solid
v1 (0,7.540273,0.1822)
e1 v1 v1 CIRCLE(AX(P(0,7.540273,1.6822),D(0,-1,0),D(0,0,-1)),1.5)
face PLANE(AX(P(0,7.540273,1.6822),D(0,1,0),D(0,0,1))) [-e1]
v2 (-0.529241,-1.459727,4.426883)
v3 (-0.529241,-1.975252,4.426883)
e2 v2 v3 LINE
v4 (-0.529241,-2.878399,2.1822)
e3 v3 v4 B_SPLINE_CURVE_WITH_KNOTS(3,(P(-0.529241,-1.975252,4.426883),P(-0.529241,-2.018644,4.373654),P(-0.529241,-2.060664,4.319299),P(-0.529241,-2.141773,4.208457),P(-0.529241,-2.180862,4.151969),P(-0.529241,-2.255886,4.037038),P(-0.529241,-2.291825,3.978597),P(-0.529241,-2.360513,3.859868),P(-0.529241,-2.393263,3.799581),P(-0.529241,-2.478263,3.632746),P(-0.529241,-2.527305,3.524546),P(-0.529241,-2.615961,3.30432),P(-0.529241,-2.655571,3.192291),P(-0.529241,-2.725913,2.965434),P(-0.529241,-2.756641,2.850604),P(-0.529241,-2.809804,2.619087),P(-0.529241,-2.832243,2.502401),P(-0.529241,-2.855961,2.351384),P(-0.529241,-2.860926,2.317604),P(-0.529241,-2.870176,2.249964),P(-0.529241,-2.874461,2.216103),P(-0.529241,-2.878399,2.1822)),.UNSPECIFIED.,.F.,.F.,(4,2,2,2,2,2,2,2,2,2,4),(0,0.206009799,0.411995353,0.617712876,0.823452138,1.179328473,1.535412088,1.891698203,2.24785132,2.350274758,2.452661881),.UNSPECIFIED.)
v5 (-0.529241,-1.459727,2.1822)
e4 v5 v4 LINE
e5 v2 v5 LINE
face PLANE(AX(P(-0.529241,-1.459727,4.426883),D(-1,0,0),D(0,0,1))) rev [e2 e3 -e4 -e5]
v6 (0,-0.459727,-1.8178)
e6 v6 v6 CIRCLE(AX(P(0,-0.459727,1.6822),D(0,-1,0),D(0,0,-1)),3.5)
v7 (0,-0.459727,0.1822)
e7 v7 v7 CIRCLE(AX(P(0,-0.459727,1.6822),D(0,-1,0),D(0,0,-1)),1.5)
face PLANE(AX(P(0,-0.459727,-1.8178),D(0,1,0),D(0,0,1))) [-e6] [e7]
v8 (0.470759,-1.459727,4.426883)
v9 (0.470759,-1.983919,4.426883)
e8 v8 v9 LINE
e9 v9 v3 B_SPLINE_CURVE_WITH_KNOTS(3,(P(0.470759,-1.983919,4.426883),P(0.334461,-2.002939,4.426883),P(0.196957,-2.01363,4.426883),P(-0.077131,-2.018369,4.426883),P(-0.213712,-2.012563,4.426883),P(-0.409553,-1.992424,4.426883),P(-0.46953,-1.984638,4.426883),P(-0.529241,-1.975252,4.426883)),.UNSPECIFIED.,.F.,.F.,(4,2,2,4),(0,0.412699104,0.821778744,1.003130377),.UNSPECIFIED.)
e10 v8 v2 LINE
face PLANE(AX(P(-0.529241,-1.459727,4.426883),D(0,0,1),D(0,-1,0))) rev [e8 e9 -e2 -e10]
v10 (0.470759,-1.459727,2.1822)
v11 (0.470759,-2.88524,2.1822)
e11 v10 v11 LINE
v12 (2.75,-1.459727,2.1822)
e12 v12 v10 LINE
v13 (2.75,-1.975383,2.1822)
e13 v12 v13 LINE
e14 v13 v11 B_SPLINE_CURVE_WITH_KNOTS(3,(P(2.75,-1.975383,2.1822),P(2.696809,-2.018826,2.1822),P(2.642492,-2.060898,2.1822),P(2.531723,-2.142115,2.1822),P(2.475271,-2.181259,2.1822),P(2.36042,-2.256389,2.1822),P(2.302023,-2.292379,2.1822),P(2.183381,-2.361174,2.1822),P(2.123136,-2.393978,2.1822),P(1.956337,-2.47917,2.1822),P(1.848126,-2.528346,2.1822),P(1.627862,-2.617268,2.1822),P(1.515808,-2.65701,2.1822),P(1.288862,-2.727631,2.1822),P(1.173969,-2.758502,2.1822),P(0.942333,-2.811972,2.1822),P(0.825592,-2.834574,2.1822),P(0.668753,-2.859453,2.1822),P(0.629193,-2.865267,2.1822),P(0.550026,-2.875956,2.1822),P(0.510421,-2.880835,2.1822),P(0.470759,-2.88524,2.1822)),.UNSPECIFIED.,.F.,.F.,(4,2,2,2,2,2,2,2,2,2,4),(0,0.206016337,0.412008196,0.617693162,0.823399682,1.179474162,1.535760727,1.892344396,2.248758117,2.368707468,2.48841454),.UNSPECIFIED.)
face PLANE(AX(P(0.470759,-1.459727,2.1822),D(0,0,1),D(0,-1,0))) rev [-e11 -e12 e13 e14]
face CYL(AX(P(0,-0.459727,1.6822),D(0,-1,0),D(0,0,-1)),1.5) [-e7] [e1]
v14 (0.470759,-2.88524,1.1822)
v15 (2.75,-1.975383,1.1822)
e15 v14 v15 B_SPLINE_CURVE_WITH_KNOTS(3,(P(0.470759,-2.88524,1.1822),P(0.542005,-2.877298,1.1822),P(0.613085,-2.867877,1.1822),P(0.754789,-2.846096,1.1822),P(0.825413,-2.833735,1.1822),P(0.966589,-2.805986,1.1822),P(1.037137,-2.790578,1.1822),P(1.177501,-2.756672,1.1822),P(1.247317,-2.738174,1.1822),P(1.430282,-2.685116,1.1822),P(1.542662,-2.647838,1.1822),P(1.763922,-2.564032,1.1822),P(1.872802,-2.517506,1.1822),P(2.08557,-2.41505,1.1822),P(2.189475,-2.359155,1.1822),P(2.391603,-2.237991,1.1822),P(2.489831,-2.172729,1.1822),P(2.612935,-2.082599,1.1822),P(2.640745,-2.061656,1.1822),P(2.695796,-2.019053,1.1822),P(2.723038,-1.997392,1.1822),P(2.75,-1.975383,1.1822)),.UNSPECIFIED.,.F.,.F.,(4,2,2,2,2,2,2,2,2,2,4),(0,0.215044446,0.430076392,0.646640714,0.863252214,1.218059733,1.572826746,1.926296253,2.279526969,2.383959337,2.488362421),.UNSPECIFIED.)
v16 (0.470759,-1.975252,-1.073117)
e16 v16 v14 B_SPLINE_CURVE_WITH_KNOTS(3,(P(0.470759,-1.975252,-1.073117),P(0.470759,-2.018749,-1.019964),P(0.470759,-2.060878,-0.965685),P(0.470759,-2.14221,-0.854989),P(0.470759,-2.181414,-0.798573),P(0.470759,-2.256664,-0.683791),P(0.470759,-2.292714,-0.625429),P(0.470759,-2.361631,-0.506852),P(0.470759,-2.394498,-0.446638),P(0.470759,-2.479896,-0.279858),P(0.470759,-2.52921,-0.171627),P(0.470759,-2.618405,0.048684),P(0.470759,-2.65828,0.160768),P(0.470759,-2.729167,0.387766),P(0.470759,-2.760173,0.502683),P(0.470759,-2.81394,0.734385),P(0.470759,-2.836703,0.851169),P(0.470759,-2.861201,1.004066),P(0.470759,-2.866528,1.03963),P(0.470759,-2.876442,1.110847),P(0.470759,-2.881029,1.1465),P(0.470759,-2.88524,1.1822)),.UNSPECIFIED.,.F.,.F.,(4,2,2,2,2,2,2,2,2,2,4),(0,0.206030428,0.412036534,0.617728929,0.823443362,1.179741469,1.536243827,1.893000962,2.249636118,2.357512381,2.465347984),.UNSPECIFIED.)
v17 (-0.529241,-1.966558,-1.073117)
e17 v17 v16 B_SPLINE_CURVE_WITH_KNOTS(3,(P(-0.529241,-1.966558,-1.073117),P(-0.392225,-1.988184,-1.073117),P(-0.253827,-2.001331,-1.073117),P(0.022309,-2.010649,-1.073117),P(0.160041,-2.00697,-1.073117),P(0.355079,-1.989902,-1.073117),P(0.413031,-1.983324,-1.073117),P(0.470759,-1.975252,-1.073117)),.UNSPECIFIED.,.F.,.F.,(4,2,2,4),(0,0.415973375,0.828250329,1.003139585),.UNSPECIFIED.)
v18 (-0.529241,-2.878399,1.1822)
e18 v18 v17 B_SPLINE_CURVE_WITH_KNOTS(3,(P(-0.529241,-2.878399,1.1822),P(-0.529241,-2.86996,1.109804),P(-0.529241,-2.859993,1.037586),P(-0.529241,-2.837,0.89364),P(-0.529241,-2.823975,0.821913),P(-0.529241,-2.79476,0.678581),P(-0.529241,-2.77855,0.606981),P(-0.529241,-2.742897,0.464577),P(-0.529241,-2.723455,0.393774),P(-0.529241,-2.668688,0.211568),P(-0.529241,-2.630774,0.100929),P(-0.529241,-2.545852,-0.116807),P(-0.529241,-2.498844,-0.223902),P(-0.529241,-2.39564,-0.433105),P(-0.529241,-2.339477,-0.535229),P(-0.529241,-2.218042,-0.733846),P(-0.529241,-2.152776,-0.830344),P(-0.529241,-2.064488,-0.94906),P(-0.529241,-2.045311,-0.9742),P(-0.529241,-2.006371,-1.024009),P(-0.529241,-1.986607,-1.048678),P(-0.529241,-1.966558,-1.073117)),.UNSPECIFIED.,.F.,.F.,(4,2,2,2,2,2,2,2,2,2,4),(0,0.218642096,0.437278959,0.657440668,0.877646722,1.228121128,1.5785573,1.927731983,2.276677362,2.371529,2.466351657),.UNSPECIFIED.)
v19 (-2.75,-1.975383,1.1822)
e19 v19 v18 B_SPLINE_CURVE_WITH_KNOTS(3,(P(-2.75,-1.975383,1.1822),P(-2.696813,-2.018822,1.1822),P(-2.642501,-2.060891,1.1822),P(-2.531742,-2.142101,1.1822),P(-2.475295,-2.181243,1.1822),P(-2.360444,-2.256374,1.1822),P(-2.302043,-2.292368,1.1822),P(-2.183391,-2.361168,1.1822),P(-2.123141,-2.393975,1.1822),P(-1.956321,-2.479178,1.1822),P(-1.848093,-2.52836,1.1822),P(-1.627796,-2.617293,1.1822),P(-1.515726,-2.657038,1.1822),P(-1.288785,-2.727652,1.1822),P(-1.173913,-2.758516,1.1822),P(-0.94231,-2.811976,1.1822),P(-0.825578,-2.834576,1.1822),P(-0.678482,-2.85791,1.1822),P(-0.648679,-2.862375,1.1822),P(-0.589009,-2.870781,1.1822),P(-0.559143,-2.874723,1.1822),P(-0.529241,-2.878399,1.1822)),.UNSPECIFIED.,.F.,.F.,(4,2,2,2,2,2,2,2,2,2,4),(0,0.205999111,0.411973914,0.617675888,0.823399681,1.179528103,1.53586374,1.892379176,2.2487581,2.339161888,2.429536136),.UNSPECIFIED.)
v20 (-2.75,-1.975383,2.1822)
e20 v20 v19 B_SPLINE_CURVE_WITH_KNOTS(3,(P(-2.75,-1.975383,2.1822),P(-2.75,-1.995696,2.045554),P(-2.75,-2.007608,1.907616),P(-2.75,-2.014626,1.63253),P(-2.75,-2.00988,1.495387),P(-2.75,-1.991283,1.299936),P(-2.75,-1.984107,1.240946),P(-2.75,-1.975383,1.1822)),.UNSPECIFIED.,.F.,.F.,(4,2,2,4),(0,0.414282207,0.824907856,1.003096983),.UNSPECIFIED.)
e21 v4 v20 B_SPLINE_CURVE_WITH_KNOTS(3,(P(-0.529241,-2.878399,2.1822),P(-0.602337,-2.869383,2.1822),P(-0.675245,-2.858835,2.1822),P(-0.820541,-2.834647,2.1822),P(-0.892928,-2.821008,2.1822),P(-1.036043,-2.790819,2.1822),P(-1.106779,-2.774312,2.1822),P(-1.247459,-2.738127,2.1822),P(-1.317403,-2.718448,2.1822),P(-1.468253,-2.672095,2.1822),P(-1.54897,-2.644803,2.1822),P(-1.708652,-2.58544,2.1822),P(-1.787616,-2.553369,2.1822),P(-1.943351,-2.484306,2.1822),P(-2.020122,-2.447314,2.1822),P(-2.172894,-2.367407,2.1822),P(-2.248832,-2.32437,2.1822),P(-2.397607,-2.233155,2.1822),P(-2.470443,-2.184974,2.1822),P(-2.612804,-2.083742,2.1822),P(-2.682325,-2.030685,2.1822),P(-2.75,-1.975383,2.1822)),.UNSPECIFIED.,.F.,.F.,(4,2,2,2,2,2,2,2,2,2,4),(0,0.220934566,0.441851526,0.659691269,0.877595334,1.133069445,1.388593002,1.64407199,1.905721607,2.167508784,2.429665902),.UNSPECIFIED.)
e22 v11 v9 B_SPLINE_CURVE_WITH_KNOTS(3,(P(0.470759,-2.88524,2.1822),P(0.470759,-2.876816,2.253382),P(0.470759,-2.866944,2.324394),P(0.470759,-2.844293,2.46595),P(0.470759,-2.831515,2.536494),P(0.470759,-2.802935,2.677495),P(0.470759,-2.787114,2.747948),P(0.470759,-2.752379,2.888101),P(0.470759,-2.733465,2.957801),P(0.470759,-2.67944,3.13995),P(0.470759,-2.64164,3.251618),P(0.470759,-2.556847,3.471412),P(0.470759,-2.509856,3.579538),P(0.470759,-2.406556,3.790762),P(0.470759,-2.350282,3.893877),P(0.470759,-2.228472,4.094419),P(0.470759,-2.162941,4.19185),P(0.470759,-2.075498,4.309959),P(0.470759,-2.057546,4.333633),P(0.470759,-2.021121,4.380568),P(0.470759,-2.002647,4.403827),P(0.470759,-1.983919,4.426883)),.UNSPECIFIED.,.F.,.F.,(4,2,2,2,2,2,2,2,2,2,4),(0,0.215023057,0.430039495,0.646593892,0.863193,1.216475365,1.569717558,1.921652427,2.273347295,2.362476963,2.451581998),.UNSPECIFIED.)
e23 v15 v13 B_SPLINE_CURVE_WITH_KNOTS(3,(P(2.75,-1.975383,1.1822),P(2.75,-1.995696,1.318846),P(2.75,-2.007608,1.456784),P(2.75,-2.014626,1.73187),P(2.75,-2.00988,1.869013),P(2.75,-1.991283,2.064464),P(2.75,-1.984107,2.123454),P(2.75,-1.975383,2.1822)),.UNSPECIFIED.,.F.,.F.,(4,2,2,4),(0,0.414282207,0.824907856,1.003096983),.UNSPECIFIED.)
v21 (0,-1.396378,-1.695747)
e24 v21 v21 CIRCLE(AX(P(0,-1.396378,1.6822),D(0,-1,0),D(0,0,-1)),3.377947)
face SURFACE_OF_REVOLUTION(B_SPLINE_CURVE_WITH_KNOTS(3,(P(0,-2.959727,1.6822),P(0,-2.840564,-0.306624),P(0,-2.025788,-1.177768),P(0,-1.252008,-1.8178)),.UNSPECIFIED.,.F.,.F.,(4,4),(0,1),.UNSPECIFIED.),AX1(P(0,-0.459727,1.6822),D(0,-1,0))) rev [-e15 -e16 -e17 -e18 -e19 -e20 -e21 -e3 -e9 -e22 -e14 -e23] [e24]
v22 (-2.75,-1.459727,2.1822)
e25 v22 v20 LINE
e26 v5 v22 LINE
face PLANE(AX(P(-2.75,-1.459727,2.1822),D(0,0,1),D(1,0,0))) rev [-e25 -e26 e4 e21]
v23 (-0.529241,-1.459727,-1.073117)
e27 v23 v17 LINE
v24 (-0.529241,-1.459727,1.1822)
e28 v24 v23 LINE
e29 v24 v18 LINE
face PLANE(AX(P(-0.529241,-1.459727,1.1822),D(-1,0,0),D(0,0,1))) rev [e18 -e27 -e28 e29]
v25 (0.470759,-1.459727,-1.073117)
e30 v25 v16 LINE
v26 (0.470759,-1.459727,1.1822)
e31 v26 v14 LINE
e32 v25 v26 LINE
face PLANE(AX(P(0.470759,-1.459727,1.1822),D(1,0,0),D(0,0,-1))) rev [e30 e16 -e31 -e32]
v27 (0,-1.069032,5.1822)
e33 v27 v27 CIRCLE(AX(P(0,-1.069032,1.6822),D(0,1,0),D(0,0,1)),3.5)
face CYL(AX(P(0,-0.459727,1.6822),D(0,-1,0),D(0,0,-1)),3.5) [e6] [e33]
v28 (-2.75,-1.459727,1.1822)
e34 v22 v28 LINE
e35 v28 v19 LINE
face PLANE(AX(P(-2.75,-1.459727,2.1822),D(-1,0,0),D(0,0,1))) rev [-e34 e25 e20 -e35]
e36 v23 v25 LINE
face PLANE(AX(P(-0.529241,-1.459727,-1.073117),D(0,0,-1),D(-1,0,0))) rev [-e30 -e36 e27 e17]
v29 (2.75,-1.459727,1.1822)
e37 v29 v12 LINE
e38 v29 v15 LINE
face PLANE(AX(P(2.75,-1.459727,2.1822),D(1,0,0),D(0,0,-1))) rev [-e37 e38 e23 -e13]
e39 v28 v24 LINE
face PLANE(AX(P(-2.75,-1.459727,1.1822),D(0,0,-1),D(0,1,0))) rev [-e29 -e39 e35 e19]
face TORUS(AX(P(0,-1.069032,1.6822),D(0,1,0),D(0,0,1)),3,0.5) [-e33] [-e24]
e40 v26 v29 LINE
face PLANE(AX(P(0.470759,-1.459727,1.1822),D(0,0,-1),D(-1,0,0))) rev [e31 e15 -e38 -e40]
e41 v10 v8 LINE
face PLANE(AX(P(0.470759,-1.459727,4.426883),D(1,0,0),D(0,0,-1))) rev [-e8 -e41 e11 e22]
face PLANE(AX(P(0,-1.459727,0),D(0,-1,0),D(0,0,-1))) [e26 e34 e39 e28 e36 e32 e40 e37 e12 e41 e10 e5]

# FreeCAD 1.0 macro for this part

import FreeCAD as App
import Part
import Sketcher
from FreeCAD import Vector


def edges_at(feature, points):
    """Names of the edges that pass closest to the given points."""
    edges = feature.Shape.Edges
    near = lambda p: min(range(len(edges)), key=lambda i: edges[i].distToShape(Part.Vertex(*p))[0])
    return sorted({f"Edge{near(p) + 1}" for p in points})


def add_polygon(sketch, points):
    """Adds a closed chain of lines whose ends are joined by coincident constraints."""
    first, n = sketch.GeometryCount, len(points)
    for a, b in zip(points, points[1:] + points[:1]):
        sketch.addGeometry(Part.LineSegment(App.Vector(*a, 0), App.Vector(*b, 0)), False)
    for i in range(n):
        sketch.addConstraint(Sketcher.Constraint("Coincident", first + i, 2, first + (i + 1) % n, 1))

doc = App.newDocument("Part")
params = doc.addObject("Spreadsheet::Sheet", "Params")
for row, (alias, value) in enumerate([
    ("sketch1_width", "8 mm"),
    ("sketch1_height", "2 mm"),
    ("sketch1_width2", "10.5 mm"),
    ("revolution_angle", "360 deg"),
    ("fillet_radius", "0.5 mm"),
    ("sketch2_width", "1 mm"),
    ("pocket1_length", "1.5 mm"),
], start=1):
    params.set(f"A{row}", alias)
    params.set(f"B{row}", "=" + value)
    params.setAlias(f"B{row}", alias)

body = doc.addObject("PartDesign::Body", "Body")

sketch1 = body.newObject("Sketcher::SketchObject", "Sketch")
sketch1.AttachmentSupport = (doc.getObject("YZ_Plane"), [""])
sketch1.MapMode = "FlatFace"
sketch1.addGeometry([
    Part.LineSegment(Vector(-0.459727, -1.8178, 0), Vector(-0.459727, 0.1822, 0)),
    Part.LineSegment(Vector(-0.459727, 0.1822, 0), Vector(7.540273, 0.1822, 0)),
    Part.LineSegment(Vector(7.540273, 0.1822, 0), Vector(7.540273, 1.6822, 0)),
    Part.LineSegment(Vector(7.540273, 1.6822, 0), Vector(-2.959727, 1.6822, 0)),
    Part.BSplineCurve([Vector(-1.252008, -1.8178, 0), Vector(-2.025788, -1.177768, 0), Vector(-2.840564, -0.306624, 0), Vector(-2.959727, 1.6822, 0)], [4, 4], [0, 1], False, 3, [1, 1, 1, 1], False),
    Part.LineSegment(Vector(-1.252008, -1.8178, 0), Vector(-0.459727, -1.8178, 0)),
], False)
sketch1.addGeometry(Part.LineSegment(Vector(-2.959727, 1.6822, 0), Vector(7.540273, 1.6822, 0)), True)
sketch1.addConstraint([
    Sketcher.Constraint("Block", 4),
    Sketcher.Constraint("Coincident", 0, 2, 1, 1),
    Sketcher.Constraint("Coincident", 1, 2, 2, 1),
    Sketcher.Constraint("Coincident", 2, 2, 3, 1),
    Sketcher.Constraint("Coincident", 3, 2, 4, 2),
    Sketcher.Constraint("Coincident", 4, 1, 5, 1),
    Sketcher.Constraint("Coincident", 5, 2, 0, 1),
    Sketcher.Constraint("Vertical", 0),
    Sketcher.Constraint("Horizontal", 1),
    Sketcher.Constraint("Vertical", 2),
    Sketcher.Constraint("Horizontal", 3),
    Sketcher.Constraint("Horizontal", 5),
    Sketcher.Constraint("Horizontal", 6),
    Sketcher.Constraint("Coincident", 6, 1, 3, 2),
    Sketcher.Constraint("Vertical", 1, 2, 6, 2),
    Sketcher.Constraint("DistanceX", 1, 1, 1, 2, 8.0),
    Sketcher.Constraint("DistanceY", 0, 1, 0, 2, 2.0),
    Sketcher.Constraint("DistanceX", 3, 2, 3, 1, 10.5),
])
sketch1.setExpression("Constraints[15]", "Params.sketch1_width")
sketch1.setExpression("Constraints[16]", "Params.sketch1_height")
sketch1.setExpression("Constraints[17]", "Params.sketch1_width2")
revolution = body.newObject("PartDesign::Revolution", "Revolution")
revolution.Profile = sketch1
revolution.ReferenceAxis = (sketch1, ["Axis0"])
revolution.setExpression("Angle", "Params.revolution_angle")
doc.recompute()

fillet = body.newObject("PartDesign::Fillet", "Fillet")
fillet.Base = (revolution, edges_at(revolution, [(0, -1.252, 5.182)]))
fillet.setExpression("Radius", "Params.fillet_radius")

sketch2 = body.newObject("Sketcher::SketchObject", "Sketch001")
sketch2.AttachmentSupport = (doc.getObject("XZ_Plane"), [""])
sketch2.MapMode = "FlatFace"
sketch2.AttachmentOffset = App.Placement(Vector(0, 0, 2.959727), App.Rotation())
add_polygon(sketch2, [(0.5, 1.2), (2.8, 1.2), (2.8, 2.2), (0.5, 2.2), (0.5, 4.4), (-0.5, 4.4), (-0.5, 2.2), (-2.8, 2.2), (-2.8, 1.2), (-0.5, 1.2), (-0.5, -1.1), (0.5, -1.1)])
sketch2.addConstraint([
    Sketcher.Constraint("Horizontal", 0),
    Sketcher.Constraint("Vertical", 1),
    Sketcher.Constraint("Horizontal", 2),
    Sketcher.Constraint("Vertical", 3),
    Sketcher.Constraint("Horizontal", 4),
    Sketcher.Constraint("Vertical", 5),
    Sketcher.Constraint("Horizontal", 6),
    Sketcher.Constraint("Vertical", 7),
    Sketcher.Constraint("Horizontal", 8),
    Sketcher.Constraint("Vertical", 9),
    Sketcher.Constraint("Horizontal", 10),
    Sketcher.Constraint("Vertical", 11),
    Sketcher.Constraint("Symmetric", 1, 2, 6, 2, -2),
    Sketcher.Constraint("Horizontal", 0, 2, 7, 2),
    Sketcher.Constraint("Vertical", 5, 2, 8, 2),
    Sketcher.Constraint("Vertical", 3, 2, 10, 2),
    Sketcher.Constraint("Equal", 10, 1),
    Sketcher.Constraint("DistanceX", 4, 2, 4, 1, 1.0),
    Sketcher.Constraint("DistanceX", 6, 2, 1, 2, 5.5),
    Sketcher.Constraint("DistanceX", 0, 1, 0, 2, 2.279241),
    Sketcher.Constraint("DistanceY", -1, 1, 0, 2, 1.1822),
    Sketcher.Constraint("DistanceY", 3, 1, 3, 2, 2.244683),
    Sketcher.Constraint("DistanceY", 9, 2, 9, 1, 2.255317),
])
sketch2.setExpression("Constraints[29]", "Params.sketch2_width")
pocket1 = body.newObject("PartDesign::Pocket", "Pocket")
pocket1.Profile = sketch2
pocket1.setExpression("Length", "Params.pocket1_length")

doc.recompute()
